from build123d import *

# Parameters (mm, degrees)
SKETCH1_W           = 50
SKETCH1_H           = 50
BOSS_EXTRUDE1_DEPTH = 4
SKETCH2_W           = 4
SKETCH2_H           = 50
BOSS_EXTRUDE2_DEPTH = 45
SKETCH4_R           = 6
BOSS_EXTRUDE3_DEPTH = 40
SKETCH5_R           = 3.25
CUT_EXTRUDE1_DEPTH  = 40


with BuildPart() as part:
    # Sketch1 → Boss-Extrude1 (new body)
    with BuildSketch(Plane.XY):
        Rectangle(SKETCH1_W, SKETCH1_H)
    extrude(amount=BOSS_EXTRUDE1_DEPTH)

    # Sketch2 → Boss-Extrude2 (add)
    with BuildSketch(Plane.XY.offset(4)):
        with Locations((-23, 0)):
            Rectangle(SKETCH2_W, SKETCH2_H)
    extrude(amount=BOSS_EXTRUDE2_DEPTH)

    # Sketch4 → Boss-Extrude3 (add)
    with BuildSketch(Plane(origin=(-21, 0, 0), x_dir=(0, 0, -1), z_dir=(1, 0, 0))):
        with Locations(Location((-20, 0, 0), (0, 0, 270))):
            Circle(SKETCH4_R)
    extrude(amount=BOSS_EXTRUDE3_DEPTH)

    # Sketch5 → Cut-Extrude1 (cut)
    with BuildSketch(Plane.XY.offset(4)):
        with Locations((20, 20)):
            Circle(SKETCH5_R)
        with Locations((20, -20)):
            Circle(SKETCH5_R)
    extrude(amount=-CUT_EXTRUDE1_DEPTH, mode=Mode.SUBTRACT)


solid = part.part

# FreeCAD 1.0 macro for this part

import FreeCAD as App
import Part
import Sketcher
from FreeCAD import Vector
Q = App.Units.Quantity


def add_polygon(sketch, points):
    """Adds a closed chain of lines whose ends are joined by coincident constraints."""
    first, n = sketch.GeometryCount, len(points)
    for a, b in zip(points, points[1:] + points[:1]):
        sketch.addGeometry(Part.LineSegment(App.Vector(*a, 0), App.Vector(*b, 0)), False)
    for i in range(n):
        sketch.addConstraint(Sketcher.Constraint("Coincident", first + i, 2, first + (i + 1) % n, 1))

doc = App.newDocument("Part")
body = doc.addObject("PartDesign::Body", "Body")

# Sketch on XY plane
sketch1 = body.newObject("Sketcher::SketchObject", "Sketch")
sketch1.AttachmentSupport = (doc.getObject("XY_Plane"), [""])
sketch1.MapMode = "FlatFace"
add_polygon(sketch1, [(-25, 25), (-25, -25), (25, -25), (25, 25)])  # lines 0-3
sketch1.addConstraint(Sketcher.Constraint("Vertical", 0))
sketch1.addConstraint(Sketcher.Constraint("Horizontal", 1))
sketch1.addConstraint(Sketcher.Constraint("Vertical", 2))
sketch1.addConstraint(Sketcher.Constraint("Horizontal", 3))
sketch1.addConstraint(Sketcher.Constraint("Symmetric", 0, 2, 2, 2, -1, 1))
sketch1.addConstraint(Sketcher.Constraint("Equal", 3, 0))
sketch1.addConstraint(Sketcher.Constraint("DistanceX", 1, 1, 1, 2, Q("50 mm")))
pad1 = body.newObject("PartDesign::Pad", "Pad")
pad1.Profile = sketch1
pad1.Length = 4

# Sketch on XY plane
sketch2 = body.newObject("Sketcher::SketchObject", "Sketch001")
sketch2.AttachmentSupport = (doc.getObject("XY_Plane"), [""])
sketch2.MapMode = "FlatFace"
sketch2.AttachmentOffset = App.Placement(Vector(0, 0, 4), App.Rotation())
add_polygon(sketch2, [(-25, 25), (-25, -25), (-21, -25), (-21, 25)])  # lines 0-3
sketch2.addConstraint(Sketcher.Constraint("Vertical", 0))
sketch2.addConstraint(Sketcher.Constraint("Horizontal", 1))
sketch2.addConstraint(Sketcher.Constraint("Vertical", 2))
sketch2.addConstraint(Sketcher.Constraint("Horizontal", 3))
sketch2.addConstraint(Sketcher.Constraint("DistanceX", 1, 1, 1, 2, Q("4 mm")))
sketch2.addConstraint(Sketcher.Constraint("DistanceY", 0, 2, 0, 1, Q("50 mm")))
sketch2.addConstraint(Sketcher.Constraint("DistanceX", 0, 2, -1, 1, Q("25 mm")))
sketch2.addConstraint(Sketcher.Constraint("DistanceY", 0, 2, -1, 1, Q("25 mm")))
pad2 = body.newObject("PartDesign::Pad", "Pad001")
pad2.Profile = sketch2
pad2.Length = 45

# Sketch on YZ plane
sketch3 = body.newObject("Sketcher::SketchObject", "Sketch002")
sketch3.AttachmentSupport = (doc.getObject("YZ_Plane"), [""])
sketch3.MapMode = "FlatFace"
sketch3.AttachmentOffset = App.Placement(Vector(0, 0, -21), App.Rotation())
sketch3.addGeometry(Part.Circle(Vector(0, 20, 0), Vector(0, 0, 1), 6), False)
sketch3.addConstraint(Sketcher.Constraint("PointOnObject", 0, 3, -2))
sketch3.addConstraint(Sketcher.Constraint("Diameter", 0, Q("12 mm")))
sketch3.addConstraint(Sketcher.Constraint("DistanceY", -1, 1, 0, 3, Q("20 mm")))
pad3 = body.newObject("PartDesign::Pad", "Pad002")
pad3.Profile = sketch3
pad3.Length = 40

# Sketch on XY plane
sketch4 = body.newObject("Sketcher::SketchObject", "Sketch003")
sketch4.AttachmentSupport = (doc.getObject("XY_Plane"), [""])
sketch4.MapMode = "FlatFace"
sketch4.AttachmentOffset = App.Placement(Vector(0, 0, 4), App.Rotation())
sketch4.addGeometry(Part.Circle(Vector(20, 20, 0), Vector(0, 0, 1), 3.25), False)
sketch4.addGeometry(Part.Circle(Vector(20, -20, 0), Vector(0, 0, 1), 3.25), False)
sketch4.addConstraint(Sketcher.Constraint("Equal", 0, 1))
sketch4.addConstraint(Sketcher.Constraint("Symmetric", 0, 3, 1, 3, -1))
sketch4.addConstraint(Sketcher.Constraint("Diameter", 0, Q("6.5 mm")))
sketch4.addConstraint(Sketcher.Constraint("DistanceX", -1, 1, 0, 3, Q("20 mm")))
sketch4.addConstraint(Sketcher.Constraint("DistanceY", -1, 1, 0, 3, Q("20 mm")))
pocket1 = body.newObject("PartDesign::Pocket", "Pocket")
pocket1.Profile = sketch4
pocket1.Length = 40

doc.recompute()
